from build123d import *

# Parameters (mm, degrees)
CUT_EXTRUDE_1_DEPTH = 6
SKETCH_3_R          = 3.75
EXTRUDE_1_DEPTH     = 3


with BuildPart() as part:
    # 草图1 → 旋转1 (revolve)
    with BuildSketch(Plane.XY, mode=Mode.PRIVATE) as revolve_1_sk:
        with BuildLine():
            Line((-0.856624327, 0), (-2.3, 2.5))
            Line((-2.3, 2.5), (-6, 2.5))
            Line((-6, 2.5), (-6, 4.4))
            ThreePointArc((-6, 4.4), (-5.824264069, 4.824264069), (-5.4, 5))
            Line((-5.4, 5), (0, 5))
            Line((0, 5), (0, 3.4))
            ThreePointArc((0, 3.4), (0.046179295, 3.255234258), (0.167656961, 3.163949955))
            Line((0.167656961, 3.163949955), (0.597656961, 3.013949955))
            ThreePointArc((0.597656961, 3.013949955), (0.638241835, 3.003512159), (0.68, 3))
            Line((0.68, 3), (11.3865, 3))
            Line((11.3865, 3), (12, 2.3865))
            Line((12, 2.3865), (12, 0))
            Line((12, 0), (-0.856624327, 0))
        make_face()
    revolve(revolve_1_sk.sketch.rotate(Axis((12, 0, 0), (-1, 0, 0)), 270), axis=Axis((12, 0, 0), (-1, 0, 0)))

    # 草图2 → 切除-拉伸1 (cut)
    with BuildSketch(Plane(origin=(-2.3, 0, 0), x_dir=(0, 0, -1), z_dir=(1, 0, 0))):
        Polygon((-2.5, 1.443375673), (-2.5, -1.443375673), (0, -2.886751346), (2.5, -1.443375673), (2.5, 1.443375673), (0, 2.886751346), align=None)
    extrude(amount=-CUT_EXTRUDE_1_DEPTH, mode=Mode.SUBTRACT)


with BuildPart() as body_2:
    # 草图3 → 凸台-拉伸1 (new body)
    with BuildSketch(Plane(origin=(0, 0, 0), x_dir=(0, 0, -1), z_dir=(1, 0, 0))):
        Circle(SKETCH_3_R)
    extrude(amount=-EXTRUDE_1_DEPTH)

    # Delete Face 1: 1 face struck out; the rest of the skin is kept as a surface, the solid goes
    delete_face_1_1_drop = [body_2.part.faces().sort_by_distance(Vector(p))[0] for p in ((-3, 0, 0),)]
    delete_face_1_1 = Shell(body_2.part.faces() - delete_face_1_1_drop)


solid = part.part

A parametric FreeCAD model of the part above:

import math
import FreeCAD as App
import Part
import Sketcher

V = App.Vector
Q = App.Units.Quantity


def add_polygon(sketch, points):
    """Adds a closed chain of lines whose ends are joined by coincident constraints."""
    first, n = sketch.GeometryCount, len(points)
    for a, b in zip(points, points[1:] + points[:1]):
        sketch.addGeometry(Part.LineSegment(App.Vector(*a, 0), App.Vector(*b, 0)), False)
    for i in range(n):
        sketch.addConstraint(Sketcher.Constraint("Coincident", first + i, 2, first + (i + 1) % n, 1))

doc = App.newDocument("Part")
body = doc.addObject("PartDesign::Body", "Body")

sketch1 = doc.addObject("Sketcher::SketchObject", "Sketch")
body.addObject(sketch1)
sketch1.AttachmentSupport = (doc.XY_Plane, [""])
sketch1.MapMode = "FlatFace"
sketch1.addGeometry([
    Part.LineSegment(V(-2.3, 2.5, 0), V(-0.856624, 0, 0)),
    Part.LineSegment(V(-0.856624, 0, 0), V(12, 0, 0)),
    Part.LineSegment(V(12, 0, 0), V(12, 2.3865, 0)),
    Part.LineSegment(V(12, 2.3865, 0), V(11.3865, 3, 0)),
    Part.LineSegment(V(11.3865, 3, 0), V(0.68, 3, 0)),
    Part.ArcOfCircle(Part.Circle(V(0.68, 3.25, 0), V(0, 0, 1), 0.25), math.radians(-109.230674), math.radians(-89.999999)),
    Part.LineSegment(V(0.597657, 3.01395, 0), V(0.167657, 3.16395, 0)),
    Part.ArcOfCircle(Part.Circle(V(0.25, 3.4, 0), V(0, 0, 1), 0.25), math.radians(-180), math.radians(-109.230672)),
    Part.LineSegment(V(0, 3.4, 0), V(0, 5, 0)),
    Part.LineSegment(V(0, 5, 0), V(-5.4, 5, 0)),
    Part.ArcOfCircle(Part.Circle(V(-5.4, 4.4, 0), V(0, 0, 1), 0.6), math.radians(90), math.radians(180)),
    Part.LineSegment(V(-6, 4.4, 0), V(-6, 2.5, 0)),
    Part.LineSegment(V(-6, 2.5, 0), V(-2.3, 2.5, 0)),
], False)
sketch1.addConstraint([
    Sketcher.Constraint("Coincident", 0, 2, 1, 1),
    Sketcher.Constraint("Coincident", 1, 2, 2, 1),
    Sketcher.Constraint("Coincident", 2, 2, 3, 1),
    Sketcher.Constraint("Coincident", 3, 2, 4, 1),
    Sketcher.Constraint("Tangent", 4, 2, 5, 2),
    Sketcher.Constraint("Tangent", 5, 1, 6, 1),
    Sketcher.Constraint("Tangent", 6, 2, 7, 2),
    Sketcher.Constraint("Tangent", 7, 1, 8, 1),
    Sketcher.Constraint("Coincident", 8, 2, 9, 1),
    Sketcher.Constraint("Tangent", 9, 2, 10, 1),
    Sketcher.Constraint("Tangent", 10, 2, 11, 1),
    Sketcher.Constraint("Coincident", 11, 2, 12, 1),
    Sketcher.Constraint("Coincident", 12, 2, 0, 1),
    Sketcher.Constraint("Horizontal", 1),
    Sketcher.Constraint("Vertical", 2),
    Sketcher.Constraint("Horizontal", 4),
    Sketcher.Constraint("Vertical", 8),
    Sketcher.Constraint("Horizontal", 9),
    Sketcher.Constraint("Vertical", 11),
    Sketcher.Constraint("Horizontal", 12),
    Sketcher.Constraint("Equal", 5, 7),
    Sketcher.Constraint("PointOnObject", 0, 2, -1),
    Sketcher.Constraint("PointOnObject", 7, 1, -2),
    Sketcher.Constraint("Radius", 10, 0.6),
    Sketcher.Constraint("Angle", 0, Q("-60 deg")),
    Sketcher.Constraint("Angle", 3, Q("135 deg")),
    Sketcher.Constraint("Radius", 5, 0.25),
    Sketcher.Constraint("DistanceX", 9, 2, 9, 1, 5.4),
    Sketcher.Constraint("DistanceX", 12, 1, 12, 2, 3.7),
    Sketcher.Constraint("DistanceY", 8, 1, 8, 2, 1.6),
    Sketcher.Constraint("DistanceY", 11, 2, 11, 1, 1.9),
    Sketcher.Constraint("DistanceX", -1, 1, 1, 2, 12.0),
    Sketcher.Constraint("DistanceY", -1, 1, 3, 2, 3.0),
    Sketcher.Constraint("DistanceY", -1, 1, 8, 2, 5.0),
    Sketcher.Constraint("DistanceX", -1, 1, 5, 3, 0.68),
    Sketcher.Constraint("DistanceX", 4, 2, 4, 1, 10.7065),
])
revolution = doc.addObject("PartDesign::Revolution", "Revolution")
body.addObject(revolution)
revolution.Profile = sketch1
revolution.ReferenceAxis = (sketch1, ["H_Axis"])
revolution.Angle = 360

sketch2 = doc.addObject("Sketcher::SketchObject", "Sketch001")
body.addObject(sketch2)
sketch2.AttachmentSupport = (doc.YZ_Plane, [""])
sketch2.MapMode = "FlatFace"
sketch2.AttachmentOffset = App.Placement(V(0, 0, -2.3), App.Rotation())
add_polygon(sketch2, [(1.443376, 2.5), (-1.443376, 2.5), (-2.886751, 0), (-1.443376, -2.5), (1.443376, -2.5), (2.886751, 0)])
sketch2.addConstraint([
    Sketcher.Constraint("Horizontal", 0),
    Sketcher.Constraint("Horizontal", 3),
    Sketcher.Constraint("Symmetric", 0, 2, 3, 2, -1, 1),
    Sketcher.Constraint("Symmetric", 1, 2, 4, 2, -1, 1),
    Sketcher.Constraint("PointOnObject", 1, 2, -1),
    Sketcher.Constraint("Parallel", 2, 5),
    Sketcher.Constraint("Vertical", 0, 2, 2, 2),
    Sketcher.Constraint("Angle", 1, Q("-120 deg")),
    Sketcher.Constraint("DistanceY", 2, 2, 0, 2, 5.0),
    Sketcher.Constraint("DistanceX", 0, 2, 0, 1, 2.886751),
])
pocket1 = doc.addObject("PartDesign::Pocket", "Pocket")
body.addObject(pocket1)
pocket1.Profile = sketch2
pocket1.Length = 6
body2 = doc.addObject("PartDesign::Body", "Body001")

sketch3 = doc.addObject("Sketcher::SketchObject", "Sketch002")
body2.addObject(sketch3)
sketch3.AttachmentSupport = (doc.getObject("YZ_Plane001"), [""])
sketch3.MapMode = "FlatFace"
sketch3.addGeometry(Part.Circle(V(0, 0, 0), V(0, 0, 1), 3.75), False)
sketch3.addConstraint([
    Sketcher.Constraint("Coincident", 0, 3, -1, 1),
    Sketcher.Constraint("Diameter", 0, 7.5),
])
pad1 = doc.addObject("PartDesign::Pad", "Pad")
body2.addObject(pad1)
pad1.Profile = sketch3
pad1.Length = 3
pad1.Reversed = True
body2.Visibility = False

doc.recompute()
